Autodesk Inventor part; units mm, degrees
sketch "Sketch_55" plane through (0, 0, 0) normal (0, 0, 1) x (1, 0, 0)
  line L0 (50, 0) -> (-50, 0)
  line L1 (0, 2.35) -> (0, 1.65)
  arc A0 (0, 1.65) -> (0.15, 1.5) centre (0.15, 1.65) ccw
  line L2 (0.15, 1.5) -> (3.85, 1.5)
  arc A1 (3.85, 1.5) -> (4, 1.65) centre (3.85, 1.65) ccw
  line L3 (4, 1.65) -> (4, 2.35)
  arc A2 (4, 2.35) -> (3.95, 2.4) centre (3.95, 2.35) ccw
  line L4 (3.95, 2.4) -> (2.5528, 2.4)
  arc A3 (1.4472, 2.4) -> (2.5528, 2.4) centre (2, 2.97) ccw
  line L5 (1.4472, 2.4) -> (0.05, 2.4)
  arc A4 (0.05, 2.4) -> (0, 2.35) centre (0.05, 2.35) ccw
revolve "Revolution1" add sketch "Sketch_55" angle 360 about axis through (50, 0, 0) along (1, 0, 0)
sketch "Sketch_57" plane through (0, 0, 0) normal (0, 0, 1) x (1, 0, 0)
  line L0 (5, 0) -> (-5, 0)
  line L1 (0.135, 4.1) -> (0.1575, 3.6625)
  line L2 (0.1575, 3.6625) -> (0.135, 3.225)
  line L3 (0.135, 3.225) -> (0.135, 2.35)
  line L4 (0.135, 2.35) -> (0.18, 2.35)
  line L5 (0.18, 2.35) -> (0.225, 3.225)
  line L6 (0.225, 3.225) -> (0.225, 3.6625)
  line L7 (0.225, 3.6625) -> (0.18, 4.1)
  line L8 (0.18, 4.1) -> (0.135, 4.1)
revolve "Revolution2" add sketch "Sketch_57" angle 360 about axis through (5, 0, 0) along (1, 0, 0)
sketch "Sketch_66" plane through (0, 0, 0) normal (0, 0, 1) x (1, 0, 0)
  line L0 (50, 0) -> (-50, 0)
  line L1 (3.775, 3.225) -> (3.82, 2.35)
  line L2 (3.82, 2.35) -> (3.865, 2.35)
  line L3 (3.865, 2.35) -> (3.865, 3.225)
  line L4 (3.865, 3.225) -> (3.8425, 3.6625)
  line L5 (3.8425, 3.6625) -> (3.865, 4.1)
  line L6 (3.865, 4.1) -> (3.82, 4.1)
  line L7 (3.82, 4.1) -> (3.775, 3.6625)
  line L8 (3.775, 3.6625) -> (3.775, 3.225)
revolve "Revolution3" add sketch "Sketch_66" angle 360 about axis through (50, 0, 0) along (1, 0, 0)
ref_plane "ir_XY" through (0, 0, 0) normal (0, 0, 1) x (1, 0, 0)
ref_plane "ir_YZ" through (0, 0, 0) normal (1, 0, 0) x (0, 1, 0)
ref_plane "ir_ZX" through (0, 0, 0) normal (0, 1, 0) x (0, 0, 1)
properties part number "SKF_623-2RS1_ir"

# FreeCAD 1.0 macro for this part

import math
import FreeCAD as App
import Part
import Sketcher
Q = App.Units.Quantity


def add_polygon(sketch, points):
    """Adds a closed chain of lines whose ends are joined by coincident constraints."""
    first, n = sketch.GeometryCount, len(points)
    for a, b in zip(points, points[1:] + points[:1]):
        sketch.addGeometry(Part.LineSegment(App.Vector(*a, 0), App.Vector(*b, 0)), False)
    for i in range(n):
        sketch.addConstraint(Sketcher.Constraint("Coincident", first + i, 2, first + (i + 1) % n, 1))

doc = App.newDocument("Part")
params = doc.addObject("Spreadsheet::Sheet", "Params")
for row, (alias, value) in enumerate([
    ("sketch1_radius", "0.05 mm"),
    ("sketch1_radius2", "0.15 mm"),
    ("sketch1_width", "3.7 mm"),
    ("sketch1_height", "0.7 mm"),
    ("revolution_angle", "360 deg"),
    ("revolution2_angle", "360 deg"),
    ("revolution3_angle", "360 deg"),
], start=1):
    params.set(f"A{row}", alias)
    params.set(f"B{row}", "=" + value)
    params.setAlias(f"B{row}", alias)

body = doc.addObject("PartDesign::Body", "Body")

# Sketch on XY plane
sketch1 = body.newObject("Sketcher::SketchObject", "Sketch")
sketch1.AttachmentSupport = (doc.getObject("XY_Plane"), [""])
sketch1.MapMode = "FlatFace"
sketch1.addGeometry(Part.ArcOfCircle(Part.Circle(App.Vector(0.05, 2.35, 0), App.Vector(0, 0, 1), 0.05), math.radians(90), math.radians(180)), False)
sketch1.addGeometry(Part.LineSegment(App.Vector(0, 2.35, 0), App.Vector(0, 1.65, 0)), False)
sketch1.addGeometry(Part.ArcOfCircle(Part.Circle(App.Vector(0.15, 1.65, 0), App.Vector(0, 0, 1), 0.15), math.radians(180), math.radians(270)), False)
sketch1.addGeometry(Part.LineSegment(App.Vector(0.15, 1.5, 0), App.Vector(3.85, 1.5, 0)), False)
sketch1.addGeometry(Part.ArcOfCircle(Part.Circle(App.Vector(3.85, 1.65, 0), App.Vector(0, 0, 1), 0.15), math.radians(-90), math.radians(0)), False)
sketch1.addGeometry(Part.LineSegment(App.Vector(4, 1.65, 0), App.Vector(4, 2.35, 0)), False)
sketch1.addGeometry(Part.ArcOfCircle(Part.Circle(App.Vector(3.95, 2.35, 0), App.Vector(0, 0, 1), 0.05), math.radians(0), math.radians(90)), False)
sketch1.addGeometry(Part.LineSegment(App.Vector(3.95, 2.4, 0), App.Vector(2.553, 2.4, 0)), False)
sketch1.addGeometry(Part.ArcOfCircle(Part.Circle(App.Vector(2, 2.97, 0), App.Vector(0, 0, 1), 0.794), math.radians(-134), math.radians(-46)), False)
sketch1.addGeometry(Part.LineSegment(App.Vector(1.447, 2.4, 0), App.Vector(0.05, 2.4, 0)), False)
sketch1.addConstraint(Sketcher.Constraint("Tangent", 0, 2, 1, 1))
sketch1.addConstraint(Sketcher.Constraint("Tangent", 1, 2, 2, 1))
sketch1.addConstraint(Sketcher.Constraint("Tangent", 2, 2, 3, 1))
sketch1.addConstraint(Sketcher.Constraint("Tangent", 3, 2, 4, 1))
sketch1.addConstraint(Sketcher.Constraint("Tangent", 4, 2, 5, 1))
sketch1.addConstraint(Sketcher.Constraint("Tangent", 5, 2, 6, 1))
sketch1.addConstraint(Sketcher.Constraint("Tangent", 6, 2, 7, 1))
sketch1.addConstraint(Sketcher.Constraint("Coincident", 7, 2, 8, 2))
sketch1.addConstraint(Sketcher.Constraint("Coincident", 8, 1, 9, 1))
sketch1.addConstraint(Sketcher.Constraint("Tangent", 9, 2, 0, 1))
sketch1.addConstraint(Sketcher.Constraint("Vertical", 1))
sketch1.addConstraint(Sketcher.Constraint("Horizontal", 3))
sketch1.addConstraint(Sketcher.Constraint("Vertical", 5))
sketch1.addConstraint(Sketcher.Constraint("Horizontal", 7))
sketch1.addConstraint(Sketcher.Constraint("Horizontal", 9))
sketch1.addConstraint(Sketcher.Constraint("Equal", 2, 4))
sketch1.addConstraint(Sketcher.Constraint("Equal", 0, 6))
sketch1.addConstraint(Sketcher.Constraint("PointOnObject", 0, 2, -2))
sketch1.addConstraint(Sketcher.Constraint("Horizontal", 0, 3, 6, 3))
sketch1.addConstraint(Sketcher.Constraint("Equal", 7, 9))
sketch1.addConstraint(Sketcher.Constraint("Radius", 0, Q("0.05 mm")))
sketch1.addConstraint(Sketcher.Constraint("Radius", 2, Q("0.15 mm")))
sketch1.addConstraint(Sketcher.Constraint("DistanceX", 3, 1, 3, 2, Q("3.7 mm")))
sketch1.addConstraint(Sketcher.Constraint("DistanceY", 1, 2, 1, 1, Q("0.7 mm")))
sketch1.addConstraint(Sketcher.Constraint("Radius", 8, Q("0.794 mm")))
sketch1.addConstraint(Sketcher.Constraint("DistanceY", -1, 1, 2, 2, Q("1.5 mm")))
sketch1.addConstraint(Sketcher.Constraint("DistanceY", -1, 1, 8, 3, Q("2.97 mm")))
sketch1.setExpression("Constraints[20]", "Params.sketch1_radius")
sketch1.setExpression("Constraints[21]", "Params.sketch1_radius2")
sketch1.setExpression("Constraints[22]", "Params.sketch1_width")
sketch1.setExpression("Constraints[23]", "Params.sketch1_height")
revolution = body.newObject("PartDesign::Revolution", "Revolution")
revolution.Profile = sketch1
revolution.ReferenceAxis = (sketch1, ["H_Axis"])
revolution.setExpression("Angle", "Params.revolution_angle")

# Sketch on XY plane
sketch2 = body.newObject("Sketcher::SketchObject", "Sketch001")
sketch2.AttachmentSupport = (doc.getObject("XY_Plane"), [""])
sketch2.MapMode = "FlatFace"
add_polygon(sketch2, [(0.18, 4.1), (0.135, 4.1), (0.158, 3.663), (0.135, 3.225), (0.135, 2.35), (0.18, 2.35), (0.225, 3.225), (0.225, 3.663)])  # lines 0-7
sketch2.addConstraint(Sketcher.Constraint("Horizontal", 0))
sketch2.addConstraint(Sketcher.Constraint("Vertical", 3))
sketch2.addConstraint(Sketcher.Constraint("Horizontal", 4))
sketch2.addConstraint(Sketcher.Constraint("Vertical", 6))
sketch2.addConstraint(Sketcher.Constraint("Parallel", 2, 5))
sketch2.addConstraint(Sketcher.Constraint("Horizontal", 2, 2, 5, 2))
sketch2.addConstraint(Sketcher.Constraint("Horizontal", 1, 2, 6, 2))
sketch2.addConstraint(Sketcher.Constraint("Vertical", 0, 2, 2, 2))
sketch2.addConstraint(Sketcher.Constraint("Vertical", 4, 2, 7, 2))
sketch2.addConstraint(Sketcher.Constraint("Equal", 1, 2))
sketch2.addConstraint(Sketcher.Constraint("DistanceY", -1, 1, 0, 2, Q("4.1 mm")))
sketch2.addConstraint(Sketcher.Constraint("DistanceX", 0, 2, 0, 1, Q("0.045 mm")))
sketch2.addConstraint(Sketcher.Constraint("DistanceY", 3, 2, 3, 1, Q("0.875 mm")))
sketch2.addConstraint(Sketcher.Constraint("DistanceY", -1, 1, 3, 2, Q("2.35 mm")))
sketch2.addConstraint(Sketcher.Constraint("DistanceX", -1, 1, 4, 2, Q("0.18 mm")))
sketch2.addConstraint(Sketcher.Constraint("DistanceX", 2, 2, 5, 2, Q("0.09 mm")))
revolution2 = body.newObject("PartDesign::Revolution", "Revolution001")
revolution2.Profile = sketch2
revolution2.ReferenceAxis = (sketch2, ["H_Axis"])
revolution2.setExpression("Angle", "Params.revolution2_angle")

# Sketch on XY plane
sketch3 = body.newObject("Sketcher::SketchObject", "Sketch002")
sketch3.AttachmentSupport = (doc.getObject("XY_Plane"), [""])
sketch3.MapMode = "FlatFace"
add_polygon(sketch3, [(3.775, 3.663), (3.775, 3.225), (3.82, 2.35), (3.865, 2.35), (3.865, 3.225), (3.842, 3.663), (3.865, 4.1), (3.82, 4.1)])  # lines 0-7
sketch3.addConstraint(Sketcher.Constraint("Vertical", 0))
sketch3.addConstraint(Sketcher.Constraint("Horizontal", 2))
sketch3.addConstraint(Sketcher.Constraint("Vertical", 3))
sketch3.addConstraint(Sketcher.Constraint("Horizontal", 6))
sketch3.addConstraint(Sketcher.Constraint("Parallel", 1, 4))
sketch3.addConstraint(Sketcher.Constraint("Horizontal", 0, 2, 3, 2))
sketch3.addConstraint(Sketcher.Constraint("Horizontal", 4, 2, 7, 2))
sketch3.addConstraint(Sketcher.Constraint("Vertical", 3, 2, 5, 2))
sketch3.addConstraint(Sketcher.Constraint("Vertical", 1, 2, 6, 2))
sketch3.addConstraint(Sketcher.Constraint("Equal", 4, 5))
sketch3.addConstraint(Sketcher.Constraint("DistanceY", -1, 1, 5, 2, Q("4.1 mm")))
sketch3.addConstraint(Sketcher.Constraint("DistanceX", 2, 1, 2, 2, Q("0.045 mm")))
sketch3.addConstraint(Sketcher.Constraint("DistanceY", 3, 1, 3, 2, Q("0.875 mm")))
sketch3.addConstraint(Sketcher.Constraint("DistanceX", -1, 1, 1, 2, Q("3.82 mm")))
sketch3.addConstraint(Sketcher.Constraint("DistanceY", -1, 1, 1, 2, Q("2.35 mm")))
sketch3.addConstraint(Sketcher.Constraint("DistanceX", 0, 2, 2, 2, Q("0.09 mm")))
revolution3 = body.newObject("PartDesign::Revolution", "Revolution002")
revolution3.Profile = sketch3
revolution3.ReferenceAxis = (sketch3, ["H_Axis"])
revolution3.setExpression("Angle", "Params.revolution3_angle")

doc.recompute()
